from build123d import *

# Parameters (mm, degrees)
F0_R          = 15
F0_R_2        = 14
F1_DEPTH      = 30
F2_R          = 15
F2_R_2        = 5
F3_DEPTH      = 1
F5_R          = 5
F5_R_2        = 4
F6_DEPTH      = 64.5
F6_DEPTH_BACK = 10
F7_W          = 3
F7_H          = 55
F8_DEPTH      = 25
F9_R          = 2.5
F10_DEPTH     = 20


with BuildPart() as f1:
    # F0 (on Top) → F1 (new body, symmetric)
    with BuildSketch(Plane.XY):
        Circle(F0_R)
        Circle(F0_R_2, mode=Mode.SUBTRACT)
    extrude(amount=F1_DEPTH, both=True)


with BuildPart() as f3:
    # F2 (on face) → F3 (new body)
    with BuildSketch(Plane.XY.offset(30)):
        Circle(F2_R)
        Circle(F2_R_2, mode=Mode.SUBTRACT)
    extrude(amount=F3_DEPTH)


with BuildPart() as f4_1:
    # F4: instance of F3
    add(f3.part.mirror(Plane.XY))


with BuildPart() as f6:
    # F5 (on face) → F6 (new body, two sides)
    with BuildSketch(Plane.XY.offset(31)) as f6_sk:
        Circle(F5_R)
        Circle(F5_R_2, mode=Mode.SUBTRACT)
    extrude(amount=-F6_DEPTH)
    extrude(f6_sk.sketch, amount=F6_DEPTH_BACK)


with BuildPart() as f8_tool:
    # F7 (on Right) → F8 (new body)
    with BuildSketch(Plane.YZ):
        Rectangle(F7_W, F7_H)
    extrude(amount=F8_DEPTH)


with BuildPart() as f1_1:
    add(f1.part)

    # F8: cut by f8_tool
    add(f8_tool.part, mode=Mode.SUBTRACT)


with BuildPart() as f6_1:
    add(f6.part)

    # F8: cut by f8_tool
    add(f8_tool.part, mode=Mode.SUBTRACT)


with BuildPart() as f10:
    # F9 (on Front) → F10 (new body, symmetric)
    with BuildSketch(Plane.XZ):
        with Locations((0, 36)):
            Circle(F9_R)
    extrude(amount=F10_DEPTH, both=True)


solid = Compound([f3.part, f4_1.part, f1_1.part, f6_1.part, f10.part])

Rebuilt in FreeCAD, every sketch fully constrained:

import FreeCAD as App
import Part
import Sketcher
Q = App.Units.Quantity


def add_polygon(sketch, points):
    """Adds a closed chain of lines whose ends are joined by coincident constraints."""
    first, n = sketch.GeometryCount, len(points)
    for a, b in zip(points, points[1:] + points[:1]):
        sketch.addGeometry(Part.LineSegment(App.Vector(*a, 0), App.Vector(*b, 0)), False)
    for i in range(n):
        sketch.addConstraint(Sketcher.Constraint("Coincident", first + i, 2, first + (i + 1) % n, 1))

doc = App.newDocument("Part")
body = doc.addObject("PartDesign::Body", "Body")

# Sketch on XY plane
sketch1 = body.newObject("Sketcher::SketchObject", "Sketch")
sketch1.AttachmentSupport = (doc.getObject("XY_Plane"), [""])
sketch1.MapMode = "FlatFace"
sketch1.addGeometry(Part.Circle(App.Vector(0, 0, 0), App.Vector(0, 0, 1), 15), False)
sketch1.addGeometry(Part.Circle(App.Vector(0, 0, 0), App.Vector(0, 0, 1), 14), False)
sketch1.addConstraint(Sketcher.Constraint("Coincident", 0, 3, -1, 1))
sketch1.addConstraint(Sketcher.Constraint("Coincident", 1, 3, -1, 1))
sketch1.addConstraint(Sketcher.Constraint("Diameter", 0, Q("30 mm")))
sketch1.addConstraint(Sketcher.Constraint("Diameter", 1, Q("28 mm")))
pad1 = body.newObject("PartDesign::Pad", "Pad")
pad1.Profile = sketch1
pad1.Length = 60
pad1.Midplane = True
body2 = doc.addObject("PartDesign::Body", "Body001")

# Sketch on XY plane
sketch2 = body2.newObject("Sketcher::SketchObject", "Sketch001")
sketch2.AttachmentSupport = (doc.getObject("XY_Plane001"), [""])
sketch2.MapMode = "FlatFace"
sketch2.AttachmentOffset = App.Placement(App.Vector(0, 0, 30), App.Rotation())
sketch2.addGeometry(Part.Circle(App.Vector(0, 0, 0), App.Vector(0, 0, 1), 15), False)
sketch2.addGeometry(Part.Circle(App.Vector(0, 0, 0), App.Vector(0, 0, 1), 5), False)
sketch2.addConstraint(Sketcher.Constraint("Coincident", 0, 3, -1, 1))
sketch2.addConstraint(Sketcher.Constraint("Coincident", 1, 3, -1, 1))
sketch2.addConstraint(Sketcher.Constraint("Diameter", 0, Q("30 mm")))
sketch2.addConstraint(Sketcher.Constraint("Diameter", 1, Q("10 mm")))
pad2 = body2.newObject("PartDesign::Pad", "Pad001")
pad2.Profile = sketch2
pad2.Length = 1
body3 = doc.addObject("PartDesign::Body", "Body002")
doc.recompute()

mirroring = doc.addObject("Part::Mirroring", "Mirroring")
mirroring.Source = body2
mirroring.Base = App.Vector(0, 0, 0)
mirroring.Normal = App.Vector(0, 0, 1)
body3.BaseFeature = mirroring
doc.recompute()
body4 = doc.addObject("PartDesign::Body", "Body003")

# Sketch on XY plane
sketch3 = body4.newObject("Sketcher::SketchObject", "Sketch002")
sketch3.AttachmentSupport = (doc.getObject("XY_Plane003"), [""])
sketch3.MapMode = "FlatFace"
sketch3.AttachmentOffset = App.Placement(App.Vector(0, 0, 31), App.Rotation())
sketch3.addGeometry(Part.Circle(App.Vector(0, 0, 0), App.Vector(0, 0, 1), 5), False)
sketch3.addGeometry(Part.Circle(App.Vector(0, 0, 0), App.Vector(0, 0, 1), 4), False)
sketch3.addConstraint(Sketcher.Constraint("Coincident", 0, 3, -1, 1))
sketch3.addConstraint(Sketcher.Constraint("Coincident", 1, 3, -1, 1))
sketch3.addConstraint(Sketcher.Constraint("Diameter", 0, Q("10 mm")))
sketch3.addConstraint(Sketcher.Constraint("Diameter", 1, Q("8 mm")))
pad3 = body4.newObject("PartDesign::Pad", "Pad002")
pad3.Profile = sketch3
pad3.Type = "TwoLengths"
pad3.Length = 64.5
pad3.Length2 = 10
pad3.Reversed = True
body5 = doc.addObject("PartDesign::Body", "Body004")

# Sketch on YZ plane
sketch4 = body5.newObject("Sketcher::SketchObject", "Sketch003")
sketch4.AttachmentSupport = (doc.getObject("YZ_Plane004"), [""])
sketch4.MapMode = "FlatFace"
add_polygon(sketch4, [(-1.5, 27.5), (-1.5, -27.5), (1.5, -27.5), (1.5, 27.5)])  # lines 0-3
sketch4.addConstraint(Sketcher.Constraint("Vertical", 0))
sketch4.addConstraint(Sketcher.Constraint("Horizontal", 1))
sketch4.addConstraint(Sketcher.Constraint("Vertical", 2))
sketch4.addConstraint(Sketcher.Constraint("Horizontal", 3))
sketch4.addConstraint(Sketcher.Constraint("Symmetric", 0, 2, 2, 2, -1, 1))
sketch4.addConstraint(Sketcher.Constraint("DistanceX", 1, 1, 1, 2, Q("3 mm")))
sketch4.addConstraint(Sketcher.Constraint("DistanceY", 0, 2, 0, 1, Q("55 mm")))
pad4 = body5.newObject("PartDesign::Pad", "Pad003")
pad4.Profile = sketch4
pad4.Length = 25
doc.recompute()

body6 = doc.addObject("PartDesign::Body", "Body005")
body6.BaseFeature = body5
boolean = body.newObject("PartDesign::Boolean", "Boolean")
boolean.Type = "Cut"
boolean.addObjects([body6])
doc.recompute()

boolean2 = body4.newObject("PartDesign::Boolean", "Boolean001")
boolean2.Type = "Cut"
boolean2.addObjects([body5])
body7 = doc.addObject("PartDesign::Body", "Body006")

# Sketch on XZ plane
sketch5 = body7.newObject("Sketcher::SketchObject", "Sketch004")
sketch5.AttachmentSupport = (doc.getObject("XZ_Plane006"), [""])
sketch5.MapMode = "FlatFace"
sketch5.addGeometry(Part.Circle(App.Vector(0, 36, 0), App.Vector(0, 0, 1), 2.5), False)
sketch5.addConstraint(Sketcher.Constraint("PointOnObject", 0, 3, -2))
sketch5.addConstraint(Sketcher.Constraint("Diameter", 0, Q("5 mm")))
sketch5.addConstraint(Sketcher.Constraint("DistanceY", -1, 1, 0, 3, Q("36 mm")))
pad5 = body7.newObject("PartDesign::Pad", "Pad004")
pad5.Profile = sketch5
pad5.Length = 40
pad5.Midplane = True
mirroring.Visibility = False

doc.recompute()
